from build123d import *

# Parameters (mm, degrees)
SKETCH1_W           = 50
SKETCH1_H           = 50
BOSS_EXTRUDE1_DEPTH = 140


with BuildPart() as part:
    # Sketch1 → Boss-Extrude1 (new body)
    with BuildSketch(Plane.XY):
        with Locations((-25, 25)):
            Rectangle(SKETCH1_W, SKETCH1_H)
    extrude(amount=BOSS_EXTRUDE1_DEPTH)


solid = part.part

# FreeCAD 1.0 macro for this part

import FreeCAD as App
import Part
import Sketcher

V = App.Vector
Q = App.Units.Quantity

doc = App.newDocument("Part")
body = doc.addObject("PartDesign::Body", "Body")

sketch1 = doc.addObject("Sketcher::SketchObject", "Sketch")
body.addObject(sketch1)
sketch1.AttachmentSupport = (doc.XY_Plane, [""])
sketch1.MapMode = "FlatFace"
sketch1.addGeometry(Part.LineSegment(V(-50, 50, 0), V(-50, 0, 0)), False)
sketch1.addGeometry(Part.LineSegment(V(-50, 0, 0), V(0, 0, 0)), False)
sketch1.addGeometry(Part.LineSegment(V(0, 0, 0), V(0, 50, 0)), False)
sketch1.addGeometry(Part.LineSegment(V(0, 50, 0), V(-50, 50, 0)), False)
sketch1.addConstraint(Sketcher.Constraint("Coincident", 0, 2, 1, 1))
sketch1.addConstraint(Sketcher.Constraint("Coincident", 1, 2, 2, 1))
sketch1.addConstraint(Sketcher.Constraint("Coincident", 2, 2, 3, 1))
sketch1.addConstraint(Sketcher.Constraint("Coincident", 3, 2, 0, 1))
sketch1.addConstraint(Sketcher.Constraint("Vertical", 0))
sketch1.addConstraint(Sketcher.Constraint("Horizontal", 1))
sketch1.addConstraint(Sketcher.Constraint("Vertical", 2))
sketch1.addConstraint(Sketcher.Constraint("Horizontal", 3))
sketch1.addConstraint(Sketcher.Constraint("Coincident", 1, 2, -1, 1))
sketch1.addConstraint(Sketcher.Constraint("Equal", 3, 0))
sketch1.addConstraint(Sketcher.Constraint("DistanceX", 1, 1, 1, 2, Q("50 mm")))
pad1 = doc.addObject("PartDesign::Pad", "Pad")
body.addObject(pad1)
pad1.Profile = sketch1
pad1.Length = 140

doc.recompute()
